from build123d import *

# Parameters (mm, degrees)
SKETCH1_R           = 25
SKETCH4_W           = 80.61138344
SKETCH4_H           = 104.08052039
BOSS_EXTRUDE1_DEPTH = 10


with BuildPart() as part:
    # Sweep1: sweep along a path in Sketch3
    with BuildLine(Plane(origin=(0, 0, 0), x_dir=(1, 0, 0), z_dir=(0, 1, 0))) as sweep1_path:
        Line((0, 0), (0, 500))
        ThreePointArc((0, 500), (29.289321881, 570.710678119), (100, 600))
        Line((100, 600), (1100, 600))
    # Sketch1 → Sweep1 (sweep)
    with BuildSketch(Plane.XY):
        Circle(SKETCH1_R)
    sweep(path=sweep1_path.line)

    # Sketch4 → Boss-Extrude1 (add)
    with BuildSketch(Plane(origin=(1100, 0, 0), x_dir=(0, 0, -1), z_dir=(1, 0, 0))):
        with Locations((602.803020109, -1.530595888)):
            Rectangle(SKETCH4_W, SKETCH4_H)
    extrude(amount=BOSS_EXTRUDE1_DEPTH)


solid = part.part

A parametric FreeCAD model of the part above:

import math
import FreeCAD as App
import Part
import Sketcher
from FreeCAD import Vector
Q = App.Units.Quantity

doc = App.newDocument("Part")
body = doc.addObject("PartDesign::Body", "Body")

sketch1 = body.newObject("Sketcher::SketchObject", "Sketch")
sketch1.AttachmentSupport = (doc.getObject("XY_Plane"), [""])
sketch1.MapMode = "FlatFace"
sketch1.addGeometry(Part.Circle(Vector(0, 0, 0), Vector(0, 0, 1), 25), False)
sketch1.addConstraint([
    Sketcher.Constraint("Coincident", 0, 3, -1, 1),
    Sketcher.Constraint("Diameter", 0, Q("50 mm")),
])

sketch2 = body.newObject("Sketcher::SketchObject", "Sketch001")
sketch2.AttachmentSupport = (doc.getObject("XZ_Plane"), [""])
sketch2.MapMode = "FlatFace"
sketch2.addGeometry([
    Part.LineSegment(Vector(0, 0, 0), Vector(0, -500, 0)),
    Part.ArcOfCircle(Part.Circle(Vector(100, -500, 0), Vector(0, 0, 1), 100), math.radians(180), math.radians(270)),
    Part.LineSegment(Vector(100, -600, 0), Vector(1100, -600, 0)),
], False)
sketch2.addConstraint([
    Sketcher.Constraint("Tangent", 0, 2, 1, 1),
    Sketcher.Constraint("Tangent", 1, 2, 2, 1),
    Sketcher.Constraint("Vertical", 0),
    Sketcher.Constraint("Horizontal", 2),
    Sketcher.Constraint("Coincident", 0, 1, -1, 1),
    Sketcher.Constraint("Radius", 1, Q("100 mm")),
    Sketcher.Constraint("DistanceX", 2, 1, 2, 2, Q("1000 mm")),
    Sketcher.Constraint("DistanceY", 0, 2, 0, 1, Q("500 mm")),
])
doc.recompute()

additivepipe = body.newObject("PartDesign::AdditivePipe", "AdditivePipe")
additivepipe.Profile = sketch1
additivepipe.Spine = (sketch2, ["Edge1", "Edge2", "Edge3"])

sketch3 = body.newObject("Sketcher::SketchObject", "Sketch002")
sketch3.AttachmentSupport = (doc.getObject("YZ_Plane"), [""])
sketch3.MapMode = "FlatFace"
sketch3.AttachmentOffset = App.Placement(Vector(0, 0, 1100), App.Rotation())
sketch3.addGeometry([
    Part.LineSegment(Vector(51, -562, 0), Vector(-54, -562, 0)),
    Part.LineSegment(Vector(-54, -562, 0), Vector(-54, -643, 0)),
    Part.LineSegment(Vector(-54, -643, 0), Vector(51, -643, 0)),
    Part.LineSegment(Vector(51, -643, 0), Vector(51, -562, 0)),
], False)
sketch3.addConstraint([
    Sketcher.Constraint("Coincident", 0, 2, 1, 1),
    Sketcher.Constraint("Coincident", 1, 2, 2, 1),
    Sketcher.Constraint("Coincident", 2, 2, 3, 1),
    Sketcher.Constraint("Coincident", 3, 2, 0, 1),
    Sketcher.Constraint("Horizontal", 0),
    Sketcher.Constraint("Vertical", 1),
    Sketcher.Constraint("Horizontal", 2),
    Sketcher.Constraint("Vertical", 3),
    Sketcher.Constraint("DistanceX", 0, 2, 0, 1, Q("104.08052 mm")),
    Sketcher.Constraint("DistanceY", 1, 2, 1, 1, Q("80.611383 mm")),
    Sketcher.Constraint("DistanceY", 0, 2, -1, 1, Q("562.497328 mm")),
    Sketcher.Constraint("DistanceX", 0, 2, -1, 1, Q("53.570856 mm")),
])
pad1 = body.newObject("PartDesign::Pad", "Pad")
pad1.Profile = sketch3
pad1.Length = 10

doc.recompute()
